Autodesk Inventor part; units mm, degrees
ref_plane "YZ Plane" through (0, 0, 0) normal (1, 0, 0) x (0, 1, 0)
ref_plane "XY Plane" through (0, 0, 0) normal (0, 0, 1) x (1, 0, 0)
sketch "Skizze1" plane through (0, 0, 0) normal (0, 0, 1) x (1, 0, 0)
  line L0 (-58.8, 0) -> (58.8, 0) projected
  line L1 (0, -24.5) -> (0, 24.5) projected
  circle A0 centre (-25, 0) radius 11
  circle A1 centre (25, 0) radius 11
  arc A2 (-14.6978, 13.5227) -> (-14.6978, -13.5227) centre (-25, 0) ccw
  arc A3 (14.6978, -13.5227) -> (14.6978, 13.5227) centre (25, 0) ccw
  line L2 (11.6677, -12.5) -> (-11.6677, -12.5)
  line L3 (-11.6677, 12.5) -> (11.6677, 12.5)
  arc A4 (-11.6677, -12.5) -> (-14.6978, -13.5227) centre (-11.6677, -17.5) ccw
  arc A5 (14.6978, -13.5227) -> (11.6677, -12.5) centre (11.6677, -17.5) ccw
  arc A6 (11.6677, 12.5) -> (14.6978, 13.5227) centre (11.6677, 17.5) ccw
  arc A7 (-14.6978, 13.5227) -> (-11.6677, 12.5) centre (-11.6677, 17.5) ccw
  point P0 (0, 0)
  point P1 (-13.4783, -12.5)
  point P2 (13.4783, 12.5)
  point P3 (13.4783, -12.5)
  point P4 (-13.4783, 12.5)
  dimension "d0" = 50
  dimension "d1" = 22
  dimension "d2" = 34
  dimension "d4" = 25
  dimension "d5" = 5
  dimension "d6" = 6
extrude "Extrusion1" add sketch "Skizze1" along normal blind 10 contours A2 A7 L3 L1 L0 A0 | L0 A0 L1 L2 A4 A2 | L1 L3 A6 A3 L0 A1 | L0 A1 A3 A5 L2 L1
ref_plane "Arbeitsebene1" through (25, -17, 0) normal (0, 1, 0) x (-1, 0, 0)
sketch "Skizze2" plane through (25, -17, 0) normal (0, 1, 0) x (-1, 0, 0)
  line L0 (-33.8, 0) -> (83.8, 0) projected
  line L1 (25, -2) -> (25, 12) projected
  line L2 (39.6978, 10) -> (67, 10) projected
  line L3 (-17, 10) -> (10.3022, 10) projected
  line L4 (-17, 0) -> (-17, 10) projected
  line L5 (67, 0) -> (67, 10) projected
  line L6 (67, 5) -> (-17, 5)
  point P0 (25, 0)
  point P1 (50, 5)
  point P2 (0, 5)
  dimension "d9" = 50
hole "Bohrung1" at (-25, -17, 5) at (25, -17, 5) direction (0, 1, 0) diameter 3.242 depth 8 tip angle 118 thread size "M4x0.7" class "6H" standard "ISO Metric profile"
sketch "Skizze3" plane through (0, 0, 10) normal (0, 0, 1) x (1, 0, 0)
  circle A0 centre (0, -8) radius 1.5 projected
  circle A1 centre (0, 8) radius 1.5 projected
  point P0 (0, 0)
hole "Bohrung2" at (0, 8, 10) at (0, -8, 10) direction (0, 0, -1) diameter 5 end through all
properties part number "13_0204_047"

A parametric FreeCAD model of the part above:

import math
import FreeCAD as App
import Part
import Sketcher
Q = App.Units.Quantity

doc = App.newDocument("Part")
body = doc.addObject("PartDesign::Body", "Body")

# Sketch on XY plane
sketch1 = doc.addObject("Sketcher::SketchObject", "Sketch")
body.addObject(sketch1)
sketch1.AttachmentSupport = (doc.XY_Plane, [""])
sketch1.MapMode = "FlatFace"
sketch1.addGeometry([
    Part.ArcOfCircle(Part.Circle(App.Vector(-25, 0, 0), App.Vector(0, 0, 1), 17), math.radians(53), math.radians(307)),  # 0
    Part.ArcOfCircle(Part.Circle(App.Vector(-11.7, -17.5, 0), App.Vector(0, 0, 1), 5), math.radians(90), math.radians(127)),  # 1
    Part.LineSegment(App.Vector(-11.7, -12.5, 0), App.Vector(11.7, -12.5, 0)),  # 2
    Part.ArcOfCircle(Part.Circle(App.Vector(11.7, -17.5, 0), App.Vector(0, 0, 1), 5), math.radians(53), math.radians(90)),  # 3
    Part.ArcOfCircle(Part.Circle(App.Vector(25, 0, 0), App.Vector(0, 0, 1), 17), math.radians(-127), math.radians(127)),  # 4
    Part.ArcOfCircle(Part.Circle(App.Vector(11.7, 17.5, 0), App.Vector(0, 0, 1), 5), math.radians(-90), math.radians(-53)),  # 5
    Part.LineSegment(App.Vector(11.7, 12.5, 0), App.Vector(-11.7, 12.5, 0)),  # 6
    Part.ArcOfCircle(Part.Circle(App.Vector(-11.7, 17.5, 0), App.Vector(0, 0, 1), 5), math.radians(-127), math.radians(-90)),  # 7
    Part.Circle(App.Vector(-25, 0, 0), App.Vector(0, 0, 1), 11),  # 8
    Part.Circle(App.Vector(25, 0, 0), App.Vector(0, 0, 1), 11),  # 9
], False)
sketch1.addConstraint([
    Sketcher.Constraint("Tangent", 0, 2, 1, 2),
    Sketcher.Constraint("Tangent", 1, 1, 2, 1),
    Sketcher.Constraint("Tangent", 2, 2, 3, 2),
    Sketcher.Constraint("Tangent", 3, 1, 4, 1),
    Sketcher.Constraint("Tangent", 4, 2, 5, 2),
    Sketcher.Constraint("Tangent", 5, 1, 6, 1),
    Sketcher.Constraint("Tangent", 6, 2, 7, 2),
    Sketcher.Constraint("Tangent", 7, 1, 0, 1),
    Sketcher.Constraint("Horizontal", 2),
    Sketcher.Constraint("Horizontal", 6),
    Sketcher.Constraint("Coincident", 8, 3, 0, 3),
    Sketcher.Constraint("Coincident", 9, 3, 4, 3),
    Sketcher.Constraint("Equal", 1, 3),
    Sketcher.Constraint("Equal", 0, 4),
    Sketcher.Constraint("Equal", 3, 5),
    Sketcher.Constraint("Equal", 5, 7),
    Sketcher.Constraint("Equal", 8, 9),
    Sketcher.Constraint("Symmetric", 0, 3, 4, 3, -1, 1),
    Sketcher.Constraint("Symmetric", 3, 3, 5, 3, -1),
    Sketcher.Constraint("Diameter", 8, Q("22 mm")),
    Sketcher.Constraint("Radius", 0, Q("17 mm")),
    Sketcher.Constraint("Radius", 1, Q("5 mm")),
    Sketcher.Constraint("DistanceX", 0, 3, -1, 1, Q("25 mm")),
    Sketcher.Constraint("DistanceY", 3, 3, 5, 3, Q("35 mm")),
])
pad1 = doc.addObject("PartDesign::Pad", "Pad")
body.addObject(pad1)
pad1.Profile = sketch1
pad1.Length = 10

# Sketch on XZ plane
sketch2 = doc.addObject("Sketcher::SketchObject", "Sketch001")
body.addObject(sketch2)
sketch2.AttachmentSupport = (doc.XZ_Plane, [""])
sketch2.MapMode = "FlatFace"
sketch2.AttachmentOffset = App.Placement(App.Vector(0, 0, 17), App.Rotation())
sketch2.addGeometry([
    Part.Circle(App.Vector(-25, 5, 0), App.Vector(0, 0, 1), 1.6),
    Part.Circle(App.Vector(25, 5, 0), App.Vector(0, 0, 1), 1.6),
], False)
sketch2.addConstraint([
    Sketcher.Constraint("Equal", 0, 1),
    Sketcher.Constraint("Symmetric", 0, 3, 1, 3, -2),
    Sketcher.Constraint("Diameter", 0, Q("3.242 mm")),
    Sketcher.Constraint("DistanceX", 0, 3, -1, 1, Q("25 mm")),
    Sketcher.Constraint("DistanceY", -1, 1, 0, 3, Q("5 mm")),
])
doc.recompute()
hole = doc.addObject("PartDesign::Hole", "Hole")
body.addObject(hole)
hole.Profile = sketch2
hole.ThreadType = "None"
hole.Diameter = 3.242
hole.DepthType = "Dimension"
hole.Depth = 8
hole.DrillPoint = "Angled"
hole.DrillPointAngle = 118

# Sketch on XY plane
sketch3 = doc.addObject("Sketcher::SketchObject", "Sketch002")
body.addObject(sketch3)
sketch3.AttachmentSupport = (doc.XY_Plane, [""])
sketch3.MapMode = "FlatFace"
sketch3.AttachmentOffset = App.Placement(App.Vector(0, 0, 10), App.Rotation())
sketch3.addGeometry([
    Part.Circle(App.Vector(0, 8, 0), App.Vector(0, 0, 1), 2.5),
    Part.Circle(App.Vector(0, -8, 0), App.Vector(0, 0, 1), 2.5),
], False)
sketch3.addConstraint([
    Sketcher.Constraint("Equal", 0, 1),
    Sketcher.Constraint("Symmetric", 0, 3, 1, 3, -1, 1),
    Sketcher.Constraint("PointOnObject", 0, 3, -2),
    Sketcher.Constraint("Diameter", 0, Q("5 mm")),
    Sketcher.Constraint("DistanceY", -1, 1, 0, 3, Q("8 mm")),
])
doc.recompute()
hole2 = doc.addObject("PartDesign::Hole", "Hole001")
body.addObject(hole2)
hole2.Profile = sketch3
hole2.ThreadType = "None"
hole2.Diameter = 5
hole2.DepthType = "ThroughAll"

doc.recompute()
